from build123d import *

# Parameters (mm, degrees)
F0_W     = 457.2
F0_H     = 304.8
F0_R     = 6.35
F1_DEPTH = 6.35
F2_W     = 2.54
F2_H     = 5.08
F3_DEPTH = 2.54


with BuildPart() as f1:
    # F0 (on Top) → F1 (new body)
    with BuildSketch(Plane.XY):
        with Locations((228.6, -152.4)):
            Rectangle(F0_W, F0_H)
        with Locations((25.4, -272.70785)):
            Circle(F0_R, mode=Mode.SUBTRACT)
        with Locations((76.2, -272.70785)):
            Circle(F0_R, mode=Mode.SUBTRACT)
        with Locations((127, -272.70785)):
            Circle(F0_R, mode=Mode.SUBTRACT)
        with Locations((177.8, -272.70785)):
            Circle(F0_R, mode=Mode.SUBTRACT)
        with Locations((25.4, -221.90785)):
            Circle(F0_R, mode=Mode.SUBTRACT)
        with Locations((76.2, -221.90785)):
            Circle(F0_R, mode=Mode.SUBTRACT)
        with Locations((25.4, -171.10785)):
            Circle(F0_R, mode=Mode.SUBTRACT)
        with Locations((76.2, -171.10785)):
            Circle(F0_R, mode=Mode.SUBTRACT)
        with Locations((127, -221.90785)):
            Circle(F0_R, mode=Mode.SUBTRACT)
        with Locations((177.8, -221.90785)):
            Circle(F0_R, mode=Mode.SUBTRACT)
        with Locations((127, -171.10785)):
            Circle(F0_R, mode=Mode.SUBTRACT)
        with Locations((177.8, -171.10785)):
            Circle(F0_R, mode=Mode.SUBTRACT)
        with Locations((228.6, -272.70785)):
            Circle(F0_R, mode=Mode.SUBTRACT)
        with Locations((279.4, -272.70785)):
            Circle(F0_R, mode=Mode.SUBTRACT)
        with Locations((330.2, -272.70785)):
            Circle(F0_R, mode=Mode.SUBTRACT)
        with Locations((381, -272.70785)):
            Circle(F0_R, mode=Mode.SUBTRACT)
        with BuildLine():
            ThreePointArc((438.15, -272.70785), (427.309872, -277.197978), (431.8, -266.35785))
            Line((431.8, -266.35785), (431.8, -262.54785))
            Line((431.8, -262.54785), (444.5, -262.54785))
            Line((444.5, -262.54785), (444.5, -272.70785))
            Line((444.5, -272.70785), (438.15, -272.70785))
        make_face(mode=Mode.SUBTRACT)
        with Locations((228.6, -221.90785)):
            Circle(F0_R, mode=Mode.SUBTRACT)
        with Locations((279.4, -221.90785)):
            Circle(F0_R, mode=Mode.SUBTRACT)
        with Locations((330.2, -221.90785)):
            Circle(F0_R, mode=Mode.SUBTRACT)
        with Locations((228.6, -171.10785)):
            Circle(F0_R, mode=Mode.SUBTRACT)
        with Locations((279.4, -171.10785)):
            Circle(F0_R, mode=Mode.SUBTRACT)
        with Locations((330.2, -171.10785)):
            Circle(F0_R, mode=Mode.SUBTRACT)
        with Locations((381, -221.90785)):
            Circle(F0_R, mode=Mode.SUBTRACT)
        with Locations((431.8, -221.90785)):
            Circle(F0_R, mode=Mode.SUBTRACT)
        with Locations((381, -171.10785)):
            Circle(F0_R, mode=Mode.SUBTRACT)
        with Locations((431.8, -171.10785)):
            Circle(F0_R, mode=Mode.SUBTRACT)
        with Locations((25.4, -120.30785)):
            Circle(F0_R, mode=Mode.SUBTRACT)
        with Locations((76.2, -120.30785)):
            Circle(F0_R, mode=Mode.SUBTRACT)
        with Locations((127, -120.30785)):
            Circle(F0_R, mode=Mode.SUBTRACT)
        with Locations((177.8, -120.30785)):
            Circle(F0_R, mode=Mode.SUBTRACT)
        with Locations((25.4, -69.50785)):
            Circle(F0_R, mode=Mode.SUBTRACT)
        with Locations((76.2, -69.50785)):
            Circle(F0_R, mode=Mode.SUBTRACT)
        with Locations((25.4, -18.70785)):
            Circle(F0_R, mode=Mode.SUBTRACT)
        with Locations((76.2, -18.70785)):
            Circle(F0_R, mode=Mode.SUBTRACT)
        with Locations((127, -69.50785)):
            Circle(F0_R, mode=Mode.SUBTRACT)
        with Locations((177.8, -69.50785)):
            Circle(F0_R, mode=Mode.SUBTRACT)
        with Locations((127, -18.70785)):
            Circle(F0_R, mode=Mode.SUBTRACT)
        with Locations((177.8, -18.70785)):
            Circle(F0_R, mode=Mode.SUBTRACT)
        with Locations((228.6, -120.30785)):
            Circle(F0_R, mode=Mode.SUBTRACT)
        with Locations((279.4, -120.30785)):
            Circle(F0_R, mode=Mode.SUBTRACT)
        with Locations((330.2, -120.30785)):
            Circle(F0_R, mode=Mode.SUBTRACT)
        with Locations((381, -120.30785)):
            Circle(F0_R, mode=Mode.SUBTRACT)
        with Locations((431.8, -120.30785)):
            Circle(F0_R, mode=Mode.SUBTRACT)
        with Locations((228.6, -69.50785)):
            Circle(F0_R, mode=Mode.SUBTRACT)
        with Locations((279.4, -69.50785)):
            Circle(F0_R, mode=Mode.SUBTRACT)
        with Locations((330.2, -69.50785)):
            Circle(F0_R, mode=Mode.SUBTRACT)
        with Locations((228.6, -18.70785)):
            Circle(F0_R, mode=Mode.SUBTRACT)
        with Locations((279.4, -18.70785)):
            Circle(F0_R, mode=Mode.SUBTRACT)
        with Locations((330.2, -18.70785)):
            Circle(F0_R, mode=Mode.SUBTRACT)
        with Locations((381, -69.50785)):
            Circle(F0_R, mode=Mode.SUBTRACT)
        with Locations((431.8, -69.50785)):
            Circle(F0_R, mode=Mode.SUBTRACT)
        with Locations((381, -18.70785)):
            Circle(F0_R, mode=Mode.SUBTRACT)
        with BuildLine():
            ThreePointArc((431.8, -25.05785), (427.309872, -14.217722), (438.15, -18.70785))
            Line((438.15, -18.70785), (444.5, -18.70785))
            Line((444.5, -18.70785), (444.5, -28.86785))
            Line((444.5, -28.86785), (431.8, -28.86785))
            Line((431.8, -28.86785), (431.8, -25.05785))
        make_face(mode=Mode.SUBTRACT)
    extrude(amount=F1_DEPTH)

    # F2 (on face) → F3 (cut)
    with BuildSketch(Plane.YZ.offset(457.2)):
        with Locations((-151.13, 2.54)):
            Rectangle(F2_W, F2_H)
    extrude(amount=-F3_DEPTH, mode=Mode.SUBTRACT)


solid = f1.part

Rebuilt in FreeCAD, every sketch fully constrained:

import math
import FreeCAD as App
import Part
import Sketcher

V = App.Vector
Q = App.Units.Quantity

doc = App.newDocument("Part")
body = doc.addObject("PartDesign::Body", "Body")

sketch1 = body.newObject("Sketcher::SketchObject", "Sketch")
sketch1.AttachmentSupport = (doc.getObject("XY_Plane"), [""])
sketch1.MapMode = "FlatFace"
sketch1.addGeometry(Part.LineSegment(V(0, 0, 0), V(0, -304.8, 0)), False)
sketch1.addGeometry(Part.LineSegment(V(0, -304.8, 0), V(457.2, -304.8, 0)), False)
sketch1.addGeometry(Part.LineSegment(V(457.2, -304.8, 0), V(457.2, 0, 0)), False)
sketch1.addGeometry(Part.LineSegment(V(457.2, 0, 0), V(0, 0, 0)), False)
sketch1.addGeometry(Part.Circle(V(25.4, -272.70785, 0), V(0, 0, 1), 6.35), False)
sketch1.addGeometry(Part.Circle(V(76.2, -272.70785, 0), V(0, 0, 1), 6.35), False)
sketch1.addGeometry(Part.Circle(V(25.4, -221.90785, 0), V(0, 0, 1), 6.35), False)
sketch1.addGeometry(Part.Circle(V(76.2, -221.90785, 0), V(0, 0, 1), 6.35), False)
sketch1.addGeometry(Part.Circle(V(127, -272.70785, 0), V(0, 0, 1), 6.35), False)
sketch1.addGeometry(Part.Circle(V(177.8, -272.70785, 0), V(0, 0, 1), 6.35), False)
sketch1.addGeometry(Part.Circle(V(228.6, -272.70785, 0), V(0, 0, 1), 6.35), False)
sketch1.addGeometry(Part.Circle(V(127, -221.90785, 0), V(0, 0, 1), 6.35), False)
sketch1.addGeometry(Part.Circle(V(177.8, -221.90785, 0), V(0, 0, 1), 6.35), False)
sketch1.addGeometry(Part.Circle(V(228.6, -221.90785, 0), V(0, 0, 1), 6.35), False)
sketch1.addGeometry(Part.Circle(V(25.4, -171.10785, 0), V(0, 0, 1), 6.35), False)
sketch1.addGeometry(Part.Circle(V(76.2, -171.10785, 0), V(0, 0, 1), 6.35), False)
sketch1.addGeometry(Part.Circle(V(127, -171.10785, 0), V(0, 0, 1), 6.35), False)
sketch1.addGeometry(Part.Circle(V(177.8, -171.10785, 0), V(0, 0, 1), 6.35), False)
sketch1.addGeometry(Part.Circle(V(228.6, -171.10785, 0), V(0, 0, 1), 6.35), False)
sketch1.addGeometry(Part.Circle(V(279.4, -272.70785, 0), V(0, 0, 1), 6.35), False)
sketch1.addGeometry(Part.Circle(V(330.2, -272.70785, 0), V(0, 0, 1), 6.35), False)
sketch1.addGeometry(Part.Circle(V(279.4, -221.90785, 0), V(0, 0, 1), 6.35), False)
sketch1.addGeometry(Part.Circle(V(330.2, -221.90785, 0), V(0, 0, 1), 6.35), False)
sketch1.addGeometry(Part.Circle(V(381, -272.70785, 0), V(0, 0, 1), 6.35), False)
sketch1.addGeometry(Part.LineSegment(V(444.5, -272.70785, 0), V(438.15, -272.70785, 0)), False)
sketch1.addGeometry(Part.ArcOfCircle(Part.Circle(V(431.8, -272.70785, 0), V(0, 0, 1), 6.35), math.radians(90), math.radians(360)), False)
sketch1.addGeometry(Part.LineSegment(V(431.8, -266.35785, 0), V(431.8, -262.54785, 0)), False)
sketch1.addGeometry(Part.LineSegment(V(431.8, -262.54785, 0), V(444.5, -262.54785, 0)), False)
sketch1.addGeometry(Part.LineSegment(V(444.5, -262.54785, 0), V(444.5, -272.70785, 0)), False)
sketch1.addGeometry(Part.Circle(V(381, -221.90785, 0), V(0, 0, 1), 6.35), False)
sketch1.addGeometry(Part.Circle(V(431.8, -221.90785, 0), V(0, 0, 1), 6.35), False)
sketch1.addGeometry(Part.Circle(V(279.4, -171.10785, 0), V(0, 0, 1), 6.35), False)
sketch1.addGeometry(Part.Circle(V(330.2, -171.10785, 0), V(0, 0, 1), 6.35), False)
sketch1.addGeometry(Part.Circle(V(381, -171.10785, 0), V(0, 0, 1), 6.35), False)
sketch1.addGeometry(Part.Circle(V(431.8, -171.10785, 0), V(0, 0, 1), 6.35), False)
sketch1.addGeometry(Part.Circle(V(25.4, -120.30785, 0), V(0, 0, 1), 6.35), False)
sketch1.addGeometry(Part.Circle(V(76.2, -120.30785, 0), V(0, 0, 1), 6.35), False)
sketch1.addGeometry(Part.Circle(V(127, -120.30785, 0), V(0, 0, 1), 6.35), False)
sketch1.addGeometry(Part.Circle(V(177.8, -120.30785, 0), V(0, 0, 1), 6.35), False)
sketch1.addGeometry(Part.Circle(V(228.6, -120.30785, 0), V(0, 0, 1), 6.35), False)
sketch1.addGeometry(Part.Circle(V(25.4, -69.50785, 0), V(0, 0, 1), 6.35), False)
sketch1.addGeometry(Part.Circle(V(76.2, -69.50785, 0), V(0, 0, 1), 6.35), False)
sketch1.addGeometry(Part.Circle(V(25.4, -18.70785, 0), V(0, 0, 1), 6.35), False)
sketch1.addGeometry(Part.Circle(V(76.2, -18.70785, 0), V(0, 0, 1), 6.35), False)
sketch1.addGeometry(Part.Circle(V(127, -69.50785, 0), V(0, 0, 1), 6.35), False)
sketch1.addGeometry(Part.Circle(V(177.8, -69.50785, 0), V(0, 0, 1), 6.35), False)
sketch1.addGeometry(Part.Circle(V(228.6, -69.50785, 0), V(0, 0, 1), 6.35), False)
sketch1.addGeometry(Part.Circle(V(127, -18.70785, 0), V(0, 0, 1), 6.35), False)
sketch1.addGeometry(Part.Circle(V(177.8, -18.70785, 0), V(0, 0, 1), 6.35), False)
sketch1.addGeometry(Part.Circle(V(228.6, -18.70785, 0), V(0, 0, 1), 6.35), False)
sketch1.addGeometry(Part.Circle(V(279.4, -120.30785, 0), V(0, 0, 1), 6.35), False)
sketch1.addGeometry(Part.Circle(V(330.2, -120.30785, 0), V(0, 0, 1), 6.35), False)
sketch1.addGeometry(Part.Circle(V(381, -120.30785, 0), V(0, 0, 1), 6.35), False)
sketch1.addGeometry(Part.Circle(V(431.8, -120.30785, 0), V(0, 0, 1), 6.35), False)
sketch1.addGeometry(Part.Circle(V(279.4, -69.50785, 0), V(0, 0, 1), 6.35), False)
sketch1.addGeometry(Part.Circle(V(330.2, -69.50785, 0), V(0, 0, 1), 6.35), False)
sketch1.addGeometry(Part.Circle(V(279.4, -18.70785, 0), V(0, 0, 1), 6.35), False)
sketch1.addGeometry(Part.Circle(V(330.2, -18.70785, 0), V(0, 0, 1), 6.35), False)
sketch1.addGeometry(Part.Circle(V(381, -69.50785, 0), V(0, 0, 1), 6.35), False)
sketch1.addGeometry(Part.Circle(V(431.8, -69.50785, 0), V(0, 0, 1), 6.35), False)
sketch1.addGeometry(Part.Circle(V(381, -18.70785, 0), V(0, 0, 1), 6.35), False)
sketch1.addGeometry(Part.LineSegment(V(431.8, -28.86785, 0), V(431.8, -25.05785, 0)), False)
sketch1.addGeometry(Part.ArcOfCircle(Part.Circle(V(431.8, -18.70785, 0), V(0, 0, 1), 6.35), math.radians(0), math.radians(270)), False)
sketch1.addGeometry(Part.LineSegment(V(438.15, -18.70785, 0), V(444.5, -18.70785, 0)), False)
sketch1.addGeometry(Part.LineSegment(V(444.5, -18.70785, 0), V(444.5, -28.86785, 0)), False)
sketch1.addGeometry(Part.LineSegment(V(444.5, -28.86785, 0), V(431.8, -28.86785, 0)), False)
sketch1.addConstraint(Sketcher.Constraint("Coincident", 0, 2, 1, 1))
sketch1.addConstraint(Sketcher.Constraint("Coincident", 1, 2, 2, 1))
sketch1.addConstraint(Sketcher.Constraint("Coincident", 2, 2, 3, 1))
sketch1.addConstraint(Sketcher.Constraint("Coincident", 3, 2, 0, 1))
sketch1.addConstraint(Sketcher.Constraint("Coincident", 24, 2, 25, 2))
sketch1.addConstraint(Sketcher.Constraint("Coincident", 25, 1, 26, 1))
sketch1.addConstraint(Sketcher.Constraint("Coincident", 26, 2, 27, 1))
sketch1.addConstraint(Sketcher.Constraint("Coincident", 27, 2, 28, 1))
sketch1.addConstraint(Sketcher.Constraint("Coincident", 28, 2, 24, 1))
sketch1.addConstraint(Sketcher.Constraint("Coincident", 61, 2, 62, 2))
sketch1.addConstraint(Sketcher.Constraint("Coincident", 62, 1, 63, 1))
sketch1.addConstraint(Sketcher.Constraint("Coincident", 63, 2, 64, 1))
sketch1.addConstraint(Sketcher.Constraint("Coincident", 64, 2, 65, 1))
sketch1.addConstraint(Sketcher.Constraint("Coincident", 65, 2, 61, 1))
sketch1.addConstraint(Sketcher.Constraint("Vertical", 0))
sketch1.addConstraint(Sketcher.Constraint("Horizontal", 1))
sketch1.addConstraint(Sketcher.Constraint("Vertical", 2))
sketch1.addConstraint(Sketcher.Constraint("Horizontal", 3))
sketch1.addConstraint(Sketcher.Constraint("Horizontal", 24))
sketch1.addConstraint(Sketcher.Constraint("Vertical", 26))
sketch1.addConstraint(Sketcher.Constraint("Horizontal", 27))
sketch1.addConstraint(Sketcher.Constraint("Vertical", 28))
sketch1.addConstraint(Sketcher.Constraint("Vertical", 61))
sketch1.addConstraint(Sketcher.Constraint("Horizontal", 63))
sketch1.addConstraint(Sketcher.Constraint("Vertical", 64))
sketch1.addConstraint(Sketcher.Constraint("Horizontal", 65))
sketch1.addConstraint(Sketcher.Constraint("Coincident", 3, 2, -1, 1))
sketch1.addConstraint(Sketcher.Constraint("Equal", 4, 5))
sketch1.addConstraint(Sketcher.Constraint("Equal", 5, 6))
sketch1.addConstraint(Sketcher.Constraint("Equal", 6, 7))
sketch1.addConstraint(Sketcher.Constraint("Equal", 7, 8))
sketch1.addConstraint(Sketcher.Constraint("Equal", 8, 9))
sketch1.addConstraint(Sketcher.Constraint("Equal", 9, 10))
sketch1.addConstraint(Sketcher.Constraint("Equal", 10, 11))
sketch1.addConstraint(Sketcher.Constraint("Equal", 11, 12))
sketch1.addConstraint(Sketcher.Constraint("Equal", 12, 13))
sketch1.addConstraint(Sketcher.Constraint("Equal", 13, 14))
sketch1.addConstraint(Sketcher.Constraint("Equal", 14, 15))
sketch1.addConstraint(Sketcher.Constraint("Equal", 15, 16))
sketch1.addConstraint(Sketcher.Constraint("Equal", 16, 17))
sketch1.addConstraint(Sketcher.Constraint("Equal", 17, 18))
sketch1.addConstraint(Sketcher.Constraint("Equal", 18, 19))
sketch1.addConstraint(Sketcher.Constraint("Equal", 19, 20))
sketch1.addConstraint(Sketcher.Constraint("Equal", 20, 21))
sketch1.addConstraint(Sketcher.Constraint("Equal", 21, 22))
sketch1.addConstraint(Sketcher.Constraint("Equal", 22, 23))
sketch1.addConstraint(Sketcher.Constraint("Equal", 23, 25))
sketch1.addConstraint(Sketcher.Constraint("Equal", 25, 29))
sketch1.addConstraint(Sketcher.Constraint("Equal", 29, 30))
sketch1.addConstraint(Sketcher.Constraint("Equal", 30, 31))
sketch1.addConstraint(Sketcher.Constraint("Equal", 31, 32))
sketch1.addConstraint(Sketcher.Constraint("Equal", 32, 33))
sketch1.addConstraint(Sketcher.Constraint("Equal", 33, 34))
sketch1.addConstraint(Sketcher.Constraint("Equal", 34, 35))
sketch1.addConstraint(Sketcher.Constraint("Equal", 35, 36))
sketch1.addConstraint(Sketcher.Constraint("Equal", 36, 37))
sketch1.addConstraint(Sketcher.Constraint("Equal", 37, 38))
sketch1.addConstraint(Sketcher.Constraint("Equal", 38, 39))
sketch1.addConstraint(Sketcher.Constraint("Equal", 39, 40))
sketch1.addConstraint(Sketcher.Constraint("Equal", 40, 41))
sketch1.addConstraint(Sketcher.Constraint("Equal", 41, 42))
sketch1.addConstraint(Sketcher.Constraint("Equal", 42, 43))
sketch1.addConstraint(Sketcher.Constraint("Equal", 43, 44))
sketch1.addConstraint(Sketcher.Constraint("Equal", 44, 45))
sketch1.addConstraint(Sketcher.Constraint("Equal", 45, 46))
sketch1.addConstraint(Sketcher.Constraint("Equal", 46, 47))
sketch1.addConstraint(Sketcher.Constraint("Equal", 47, 48))
sketch1.addConstraint(Sketcher.Constraint("Equal", 48, 49))
sketch1.addConstraint(Sketcher.Constraint("Equal", 49, 50))
sketch1.addConstraint(Sketcher.Constraint("Equal", 50, 51))
sketch1.addConstraint(Sketcher.Constraint("Equal", 51, 52))
sketch1.addConstraint(Sketcher.Constraint("Equal", 52, 53))
sketch1.addConstraint(Sketcher.Constraint("Equal", 53, 54))
sketch1.addConstraint(Sketcher.Constraint("Equal", 54, 55))
sketch1.addConstraint(Sketcher.Constraint("Equal", 55, 56))
sketch1.addConstraint(Sketcher.Constraint("Equal", 56, 57))
sketch1.addConstraint(Sketcher.Constraint("Equal", 57, 58))
sketch1.addConstraint(Sketcher.Constraint("Equal", 58, 59))
sketch1.addConstraint(Sketcher.Constraint("Equal", 59, 60))
sketch1.addConstraint(Sketcher.Constraint("Equal", 60, 62))
sketch1.addConstraint(Sketcher.Constraint("Horizontal", 4, 3, 5, 3))
sketch1.addConstraint(Sketcher.Constraint("Horizontal", 6, 3, 7, 3))
sketch1.addConstraint(Sketcher.Constraint("Horizontal", 5, 3, 8, 3))
sketch1.addConstraint(Sketcher.Constraint("Horizontal", 8, 3, 9, 3))
sketch1.addConstraint(Sketcher.Constraint("Horizontal", 9, 3, 10, 3))
sketch1.addConstraint(Sketcher.Constraint("Horizontal", 7, 3, 11, 3))
sketch1.addConstraint(Sketcher.Constraint("Horizontal", 11, 3, 12, 3))
sketch1.addConstraint(Sketcher.Constraint("Horizontal", 12, 3, 13, 3))
sketch1.addConstraint(Sketcher.Constraint("Horizontal", 14, 3, 15, 3))
sketch1.addConstraint(Sketcher.Constraint("Horizontal", 15, 3, 16, 3))
sketch1.addConstraint(Sketcher.Constraint("Horizontal", 16, 3, 17, 3))
sketch1.addConstraint(Sketcher.Constraint("Horizontal", 17, 3, 18, 3))
sketch1.addConstraint(Sketcher.Constraint("Horizontal", 10, 3, 19, 3))
sketch1.addConstraint(Sketcher.Constraint("Horizontal", 19, 3, 20, 3))
sketch1.addConstraint(Sketcher.Constraint("Horizontal", 13, 3, 21, 3))
sketch1.addConstraint(Sketcher.Constraint("Horizontal", 21, 3, 22, 3))
sketch1.addConstraint(Sketcher.Constraint("Horizontal", 20, 3, 23, 3))
sketch1.addConstraint(Sketcher.Constraint("Horizontal", 23, 3, 25, 3))
sketch1.addConstraint(Sketcher.Constraint("Horizontal", 22, 3, 29, 3))
sketch1.addConstraint(Sketcher.Constraint("Horizontal", 29, 3, 30, 3))
sketch1.addConstraint(Sketcher.Constraint("Horizontal", 18, 3, 31, 3))
sketch1.addConstraint(Sketcher.Constraint("Horizontal", 31, 3, 32, 3))
sketch1.addConstraint(Sketcher.Constraint("Horizontal", 32, 3, 33, 3))
sketch1.addConstraint(Sketcher.Constraint("Horizontal", 33, 3, 34, 3))
sketch1.addConstraint(Sketcher.Constraint("Horizontal", 35, 3, 36, 3))
sketch1.addConstraint(Sketcher.Constraint("Horizontal", 36, 3, 37, 3))
sketch1.addConstraint(Sketcher.Constraint("Horizontal", 37, 3, 38, 3))
sketch1.addConstraint(Sketcher.Constraint("Horizontal", 38, 3, 39, 3))
sketch1.addConstraint(Sketcher.Constraint("Horizontal", 40, 3, 41, 3))
sketch1.addConstraint(Sketcher.Constraint("Horizontal", 42, 3, 43, 3))
sketch1.addConstraint(Sketcher.Constraint("Horizontal", 41, 3, 44, 3))
sketch1.addConstraint(Sketcher.Constraint("Horizontal", 44, 3, 45, 3))
sketch1.addConstraint(Sketcher.Constraint("Horizontal", 45, 3, 46, 3))
sketch1.addConstraint(Sketcher.Constraint("Horizontal", 43, 3, 47, 3))
sketch1.addConstraint(Sketcher.Constraint("Horizontal", 47, 3, 48, 3))
sketch1.addConstraint(Sketcher.Constraint("Horizontal", 48, 3, 49, 3))
sketch1.addConstraint(Sketcher.Constraint("Horizontal", 39, 3, 50, 3))
sketch1.addConstraint(Sketcher.Constraint("Horizontal", 50, 3, 51, 3))
sketch1.addConstraint(Sketcher.Constraint("Horizontal", 51, 3, 52, 3))
sketch1.addConstraint(Sketcher.Constraint("Horizontal", 52, 3, 53, 3))
sketch1.addConstraint(Sketcher.Constraint("Horizontal", 46, 3, 54, 3))
sketch1.addConstraint(Sketcher.Constraint("Horizontal", 54, 3, 55, 3))
sketch1.addConstraint(Sketcher.Constraint("Horizontal", 49, 3, 56, 3))
sketch1.addConstraint(Sketcher.Constraint("Horizontal", 56, 3, 57, 3))
sketch1.addConstraint(Sketcher.Constraint("Horizontal", 55, 3, 58, 3))
sketch1.addConstraint(Sketcher.Constraint("Horizontal", 58, 3, 59, 3))
sketch1.addConstraint(Sketcher.Constraint("Horizontal", 57, 3, 60, 3))
sketch1.addConstraint(Sketcher.Constraint("Horizontal", 60, 3, 62, 3))
sketch1.addConstraint(Sketcher.Constraint("Horizontal", 25, 3, 24, 2))
sketch1.addConstraint(Sketcher.Constraint("Horizontal", 60, 3, 62, 1))
sketch1.addConstraint(Sketcher.Constraint("Vertical", 4, 3, 6, 3))
sketch1.addConstraint(Sketcher.Constraint("Vertical", 5, 3, 7, 3))
sketch1.addConstraint(Sketcher.Constraint("Vertical", 8, 3, 11, 3))
sketch1.addConstraint(Sketcher.Constraint("Vertical", 9, 3, 12, 3))
sketch1.addConstraint(Sketcher.Constraint("Vertical", 10, 3, 13, 3))
sketch1.addConstraint(Sketcher.Constraint("Vertical", 6, 3, 14, 3))
sketch1.addConstraint(Sketcher.Constraint("Vertical", 7, 3, 15, 3))
sketch1.addConstraint(Sketcher.Constraint("Vertical", 11, 3, 16, 3))
sketch1.addConstraint(Sketcher.Constraint("Vertical", 12, 3, 17, 3))
sketch1.addConstraint(Sketcher.Constraint("Vertical", 13, 3, 18, 3))
sketch1.addConstraint(Sketcher.Constraint("Vertical", 19, 3, 21, 3))
sketch1.addConstraint(Sketcher.Constraint("Vertical", 20, 3, 22, 3))
sketch1.addConstraint(Sketcher.Constraint("Vertical", 23, 3, 29, 3))
sketch1.addConstraint(Sketcher.Constraint("Vertical", 25, 3, 30, 3))
sketch1.addConstraint(Sketcher.Constraint("Vertical", 21, 3, 31, 3))
sketch1.addConstraint(Sketcher.Constraint("Vertical", 22, 3, 32, 3))
sketch1.addConstraint(Sketcher.Constraint("Vertical", 29, 3, 33, 3))
sketch1.addConstraint(Sketcher.Constraint("Vertical", 30, 3, 34, 3))
sketch1.addConstraint(Sketcher.Constraint("Vertical", 14, 3, 35, 3))
sketch1.addConstraint(Sketcher.Constraint("Vertical", 15, 3, 36, 3))
sketch1.addConstraint(Sketcher.Constraint("Vertical", 16, 3, 37, 3))
sketch1.addConstraint(Sketcher.Constraint("Vertical", 17, 3, 38, 3))
sketch1.addConstraint(Sketcher.Constraint("Vertical", 18, 3, 39, 3))
sketch1.addConstraint(Sketcher.Constraint("Vertical", 35, 3, 40, 3))
sketch1.addConstraint(Sketcher.Constraint("Vertical", 36, 3, 41, 3))
sketch1.addConstraint(Sketcher.Constraint("Vertical", 40, 3, 42, 3))
sketch1.addConstraint(Sketcher.Constraint("Vertical", 41, 3, 43, 3))
sketch1.addConstraint(Sketcher.Constraint("Vertical", 37, 3, 44, 3))
sketch1.addConstraint(Sketcher.Constraint("Vertical", 38, 3, 45, 3))
sketch1.addConstraint(Sketcher.Constraint("Vertical", 39, 3, 46, 3))
sketch1.addConstraint(Sketcher.Constraint("Vertical", 44, 3, 47, 3))
sketch1.addConstraint(Sketcher.Constraint("Vertical", 45, 3, 48, 3))
sketch1.addConstraint(Sketcher.Constraint("Vertical", 46, 3, 49, 3))
sketch1.addConstraint(Sketcher.Constraint("Vertical", 31, 3, 50, 3))
sketch1.addConstraint(Sketcher.Constraint("Vertical", 32, 3, 51, 3))
sketch1.addConstraint(Sketcher.Constraint("Vertical", 33, 3, 52, 3))
sketch1.addConstraint(Sketcher.Constraint("Vertical", 34, 3, 53, 3))
sketch1.addConstraint(Sketcher.Constraint("Vertical", 50, 3, 54, 3))
sketch1.addConstraint(Sketcher.Constraint("Vertical", 51, 3, 55, 3))
sketch1.addConstraint(Sketcher.Constraint("Vertical", 54, 3, 56, 3))
sketch1.addConstraint(Sketcher.Constraint("Vertical", 55, 3, 57, 3))
sketch1.addConstraint(Sketcher.Constraint("Vertical", 52, 3, 58, 3))
sketch1.addConstraint(Sketcher.Constraint("Vertical", 53, 3, 59, 3))
sketch1.addConstraint(Sketcher.Constraint("Vertical", 58, 3, 60, 3))
sketch1.addConstraint(Sketcher.Constraint("Vertical", 59, 3, 62, 3))
sketch1.addConstraint(Sketcher.Constraint("Vertical", 62, 3, 25, 1))
sketch1.addConstraint(Sketcher.Constraint("Vertical", 26, 2, 61, 2))
sketch1.addConstraint(Sketcher.Constraint("Vertical", 28, 2, 63, 2))
sketch1.addConstraint(Sketcher.Constraint("Equal", 26, 61))
sketch1.addConstraint(Sketcher.Constraint("Diameter", 4, Q("0.5 in")))
sketch1.addConstraint(Sketcher.Constraint("DistanceX", 1, 1, 1, 2, Q("18 in")))
sketch1.addConstraint(Sketcher.Constraint("DistanceY", 0, 2, 0, 1, Q("12 in")))
sketch1.addConstraint(Sketcher.Constraint("DistanceX", 27, 1, 27, 2, Q("0.5 in")))
sketch1.addConstraint(Sketcher.Constraint("DistanceY", 28, 2, 28, 1, Q("0.4 in")))
sketch1.addConstraint(Sketcher.Constraint("DistanceX", -1, 1, 4, 3, Q("1 in")))
sketch1.addConstraint(Sketcher.Constraint("DistanceX", -1, 1, 5, 3, Q("3 in")))
sketch1.addConstraint(Sketcher.Constraint("DistanceX", -1, 1, 8, 3, Q("5 in")))
sketch1.addConstraint(Sketcher.Constraint("DistanceX", -1, 1, 9, 3, Q("7 in")))
sketch1.addConstraint(Sketcher.Constraint("DistanceX", -1, 1, 10, 3, Q("9 in")))
sketch1.addConstraint(Sketcher.Constraint("DistanceX", -1, 1, 19, 3, Q("11 in")))
sketch1.addConstraint(Sketcher.Constraint("DistanceX", -1, 1, 20, 3, Q("13 in")))
sketch1.addConstraint(Sketcher.Constraint("DistanceX", -1, 1, 23, 3, Q("15 in")))
sketch1.addConstraint(Sketcher.Constraint("DistanceX", -1, 1, 25, 3, Q("17 in")))
sketch1.addConstraint(Sketcher.Constraint("DistanceY", 4, 3, -1, 1, Q("272.70785 mm")))
sketch1.addConstraint(Sketcher.Constraint("DistanceY", 6, 3, -1, 1, Q("221.90785 mm")))
sketch1.addConstraint(Sketcher.Constraint("DistanceY", 14, 3, -1, 1, Q("171.10785 mm")))
sketch1.addConstraint(Sketcher.Constraint("DistanceY", 35, 3, -1, 1, Q("120.30785 mm")))
sketch1.addConstraint(Sketcher.Constraint("DistanceY", 40, 3, -1, 1, Q("69.50785 mm")))
sketch1.addConstraint(Sketcher.Constraint("DistanceY", 42, 3, -1, 1, Q("18.70785 mm")))
pad1 = body.newObject("PartDesign::Pad", "Pad")
pad1.Profile = sketch1
pad1.Length = Q("0.25 in")

sketch2 = body.newObject("Sketcher::SketchObject", "Sketch001")
sketch2.AttachmentSupport = (doc.getObject("YZ_Plane"), [""])
sketch2.MapMode = "FlatFace"
sketch2.AttachmentOffset = App.Placement(V(0, 0, 18 * 25.4), App.Rotation())
sketch2.addGeometry(Part.LineSegment(V(-152.4, 5.08, 0), V(-152.4, 0, 0)), False)
sketch2.addGeometry(Part.LineSegment(V(-152.4, 0, 0), V(-149.86, 0, 0)), False)
sketch2.addGeometry(Part.LineSegment(V(-149.86, 0, 0), V(-149.86, 5.08, 0)), False)
sketch2.addGeometry(Part.LineSegment(V(-149.86, 5.08, 0), V(-152.4, 5.08, 0)), False)
sketch2.addConstraint(Sketcher.Constraint("Coincident", 0, 2, 1, 1))
sketch2.addConstraint(Sketcher.Constraint("Coincident", 1, 2, 2, 1))
sketch2.addConstraint(Sketcher.Constraint("Coincident", 2, 2, 3, 1))
sketch2.addConstraint(Sketcher.Constraint("Coincident", 3, 2, 0, 1))
sketch2.addConstraint(Sketcher.Constraint("Vertical", 0))
sketch2.addConstraint(Sketcher.Constraint("Horizontal", 1))
sketch2.addConstraint(Sketcher.Constraint("Vertical", 2))
sketch2.addConstraint(Sketcher.Constraint("Horizontal", 3))
sketch2.addConstraint(Sketcher.Constraint("PointOnObject", 0, 2, -1))
sketch2.addConstraint(Sketcher.Constraint("DistanceX", 1, 1, 1, 2, Q("0.1 in")))
sketch2.addConstraint(Sketcher.Constraint("DistanceY", 0, 2, 0, 1, Q("0.2 in")))
sketch2.addConstraint(Sketcher.Constraint("DistanceX", 0, 2, -1, 1, Q("6 in")))
pocket1 = body.newObject("PartDesign::Pocket", "Pocket")
pocket1.Profile = sketch2
pocket1.Length = Q("0.1 in")

doc.recompute()
